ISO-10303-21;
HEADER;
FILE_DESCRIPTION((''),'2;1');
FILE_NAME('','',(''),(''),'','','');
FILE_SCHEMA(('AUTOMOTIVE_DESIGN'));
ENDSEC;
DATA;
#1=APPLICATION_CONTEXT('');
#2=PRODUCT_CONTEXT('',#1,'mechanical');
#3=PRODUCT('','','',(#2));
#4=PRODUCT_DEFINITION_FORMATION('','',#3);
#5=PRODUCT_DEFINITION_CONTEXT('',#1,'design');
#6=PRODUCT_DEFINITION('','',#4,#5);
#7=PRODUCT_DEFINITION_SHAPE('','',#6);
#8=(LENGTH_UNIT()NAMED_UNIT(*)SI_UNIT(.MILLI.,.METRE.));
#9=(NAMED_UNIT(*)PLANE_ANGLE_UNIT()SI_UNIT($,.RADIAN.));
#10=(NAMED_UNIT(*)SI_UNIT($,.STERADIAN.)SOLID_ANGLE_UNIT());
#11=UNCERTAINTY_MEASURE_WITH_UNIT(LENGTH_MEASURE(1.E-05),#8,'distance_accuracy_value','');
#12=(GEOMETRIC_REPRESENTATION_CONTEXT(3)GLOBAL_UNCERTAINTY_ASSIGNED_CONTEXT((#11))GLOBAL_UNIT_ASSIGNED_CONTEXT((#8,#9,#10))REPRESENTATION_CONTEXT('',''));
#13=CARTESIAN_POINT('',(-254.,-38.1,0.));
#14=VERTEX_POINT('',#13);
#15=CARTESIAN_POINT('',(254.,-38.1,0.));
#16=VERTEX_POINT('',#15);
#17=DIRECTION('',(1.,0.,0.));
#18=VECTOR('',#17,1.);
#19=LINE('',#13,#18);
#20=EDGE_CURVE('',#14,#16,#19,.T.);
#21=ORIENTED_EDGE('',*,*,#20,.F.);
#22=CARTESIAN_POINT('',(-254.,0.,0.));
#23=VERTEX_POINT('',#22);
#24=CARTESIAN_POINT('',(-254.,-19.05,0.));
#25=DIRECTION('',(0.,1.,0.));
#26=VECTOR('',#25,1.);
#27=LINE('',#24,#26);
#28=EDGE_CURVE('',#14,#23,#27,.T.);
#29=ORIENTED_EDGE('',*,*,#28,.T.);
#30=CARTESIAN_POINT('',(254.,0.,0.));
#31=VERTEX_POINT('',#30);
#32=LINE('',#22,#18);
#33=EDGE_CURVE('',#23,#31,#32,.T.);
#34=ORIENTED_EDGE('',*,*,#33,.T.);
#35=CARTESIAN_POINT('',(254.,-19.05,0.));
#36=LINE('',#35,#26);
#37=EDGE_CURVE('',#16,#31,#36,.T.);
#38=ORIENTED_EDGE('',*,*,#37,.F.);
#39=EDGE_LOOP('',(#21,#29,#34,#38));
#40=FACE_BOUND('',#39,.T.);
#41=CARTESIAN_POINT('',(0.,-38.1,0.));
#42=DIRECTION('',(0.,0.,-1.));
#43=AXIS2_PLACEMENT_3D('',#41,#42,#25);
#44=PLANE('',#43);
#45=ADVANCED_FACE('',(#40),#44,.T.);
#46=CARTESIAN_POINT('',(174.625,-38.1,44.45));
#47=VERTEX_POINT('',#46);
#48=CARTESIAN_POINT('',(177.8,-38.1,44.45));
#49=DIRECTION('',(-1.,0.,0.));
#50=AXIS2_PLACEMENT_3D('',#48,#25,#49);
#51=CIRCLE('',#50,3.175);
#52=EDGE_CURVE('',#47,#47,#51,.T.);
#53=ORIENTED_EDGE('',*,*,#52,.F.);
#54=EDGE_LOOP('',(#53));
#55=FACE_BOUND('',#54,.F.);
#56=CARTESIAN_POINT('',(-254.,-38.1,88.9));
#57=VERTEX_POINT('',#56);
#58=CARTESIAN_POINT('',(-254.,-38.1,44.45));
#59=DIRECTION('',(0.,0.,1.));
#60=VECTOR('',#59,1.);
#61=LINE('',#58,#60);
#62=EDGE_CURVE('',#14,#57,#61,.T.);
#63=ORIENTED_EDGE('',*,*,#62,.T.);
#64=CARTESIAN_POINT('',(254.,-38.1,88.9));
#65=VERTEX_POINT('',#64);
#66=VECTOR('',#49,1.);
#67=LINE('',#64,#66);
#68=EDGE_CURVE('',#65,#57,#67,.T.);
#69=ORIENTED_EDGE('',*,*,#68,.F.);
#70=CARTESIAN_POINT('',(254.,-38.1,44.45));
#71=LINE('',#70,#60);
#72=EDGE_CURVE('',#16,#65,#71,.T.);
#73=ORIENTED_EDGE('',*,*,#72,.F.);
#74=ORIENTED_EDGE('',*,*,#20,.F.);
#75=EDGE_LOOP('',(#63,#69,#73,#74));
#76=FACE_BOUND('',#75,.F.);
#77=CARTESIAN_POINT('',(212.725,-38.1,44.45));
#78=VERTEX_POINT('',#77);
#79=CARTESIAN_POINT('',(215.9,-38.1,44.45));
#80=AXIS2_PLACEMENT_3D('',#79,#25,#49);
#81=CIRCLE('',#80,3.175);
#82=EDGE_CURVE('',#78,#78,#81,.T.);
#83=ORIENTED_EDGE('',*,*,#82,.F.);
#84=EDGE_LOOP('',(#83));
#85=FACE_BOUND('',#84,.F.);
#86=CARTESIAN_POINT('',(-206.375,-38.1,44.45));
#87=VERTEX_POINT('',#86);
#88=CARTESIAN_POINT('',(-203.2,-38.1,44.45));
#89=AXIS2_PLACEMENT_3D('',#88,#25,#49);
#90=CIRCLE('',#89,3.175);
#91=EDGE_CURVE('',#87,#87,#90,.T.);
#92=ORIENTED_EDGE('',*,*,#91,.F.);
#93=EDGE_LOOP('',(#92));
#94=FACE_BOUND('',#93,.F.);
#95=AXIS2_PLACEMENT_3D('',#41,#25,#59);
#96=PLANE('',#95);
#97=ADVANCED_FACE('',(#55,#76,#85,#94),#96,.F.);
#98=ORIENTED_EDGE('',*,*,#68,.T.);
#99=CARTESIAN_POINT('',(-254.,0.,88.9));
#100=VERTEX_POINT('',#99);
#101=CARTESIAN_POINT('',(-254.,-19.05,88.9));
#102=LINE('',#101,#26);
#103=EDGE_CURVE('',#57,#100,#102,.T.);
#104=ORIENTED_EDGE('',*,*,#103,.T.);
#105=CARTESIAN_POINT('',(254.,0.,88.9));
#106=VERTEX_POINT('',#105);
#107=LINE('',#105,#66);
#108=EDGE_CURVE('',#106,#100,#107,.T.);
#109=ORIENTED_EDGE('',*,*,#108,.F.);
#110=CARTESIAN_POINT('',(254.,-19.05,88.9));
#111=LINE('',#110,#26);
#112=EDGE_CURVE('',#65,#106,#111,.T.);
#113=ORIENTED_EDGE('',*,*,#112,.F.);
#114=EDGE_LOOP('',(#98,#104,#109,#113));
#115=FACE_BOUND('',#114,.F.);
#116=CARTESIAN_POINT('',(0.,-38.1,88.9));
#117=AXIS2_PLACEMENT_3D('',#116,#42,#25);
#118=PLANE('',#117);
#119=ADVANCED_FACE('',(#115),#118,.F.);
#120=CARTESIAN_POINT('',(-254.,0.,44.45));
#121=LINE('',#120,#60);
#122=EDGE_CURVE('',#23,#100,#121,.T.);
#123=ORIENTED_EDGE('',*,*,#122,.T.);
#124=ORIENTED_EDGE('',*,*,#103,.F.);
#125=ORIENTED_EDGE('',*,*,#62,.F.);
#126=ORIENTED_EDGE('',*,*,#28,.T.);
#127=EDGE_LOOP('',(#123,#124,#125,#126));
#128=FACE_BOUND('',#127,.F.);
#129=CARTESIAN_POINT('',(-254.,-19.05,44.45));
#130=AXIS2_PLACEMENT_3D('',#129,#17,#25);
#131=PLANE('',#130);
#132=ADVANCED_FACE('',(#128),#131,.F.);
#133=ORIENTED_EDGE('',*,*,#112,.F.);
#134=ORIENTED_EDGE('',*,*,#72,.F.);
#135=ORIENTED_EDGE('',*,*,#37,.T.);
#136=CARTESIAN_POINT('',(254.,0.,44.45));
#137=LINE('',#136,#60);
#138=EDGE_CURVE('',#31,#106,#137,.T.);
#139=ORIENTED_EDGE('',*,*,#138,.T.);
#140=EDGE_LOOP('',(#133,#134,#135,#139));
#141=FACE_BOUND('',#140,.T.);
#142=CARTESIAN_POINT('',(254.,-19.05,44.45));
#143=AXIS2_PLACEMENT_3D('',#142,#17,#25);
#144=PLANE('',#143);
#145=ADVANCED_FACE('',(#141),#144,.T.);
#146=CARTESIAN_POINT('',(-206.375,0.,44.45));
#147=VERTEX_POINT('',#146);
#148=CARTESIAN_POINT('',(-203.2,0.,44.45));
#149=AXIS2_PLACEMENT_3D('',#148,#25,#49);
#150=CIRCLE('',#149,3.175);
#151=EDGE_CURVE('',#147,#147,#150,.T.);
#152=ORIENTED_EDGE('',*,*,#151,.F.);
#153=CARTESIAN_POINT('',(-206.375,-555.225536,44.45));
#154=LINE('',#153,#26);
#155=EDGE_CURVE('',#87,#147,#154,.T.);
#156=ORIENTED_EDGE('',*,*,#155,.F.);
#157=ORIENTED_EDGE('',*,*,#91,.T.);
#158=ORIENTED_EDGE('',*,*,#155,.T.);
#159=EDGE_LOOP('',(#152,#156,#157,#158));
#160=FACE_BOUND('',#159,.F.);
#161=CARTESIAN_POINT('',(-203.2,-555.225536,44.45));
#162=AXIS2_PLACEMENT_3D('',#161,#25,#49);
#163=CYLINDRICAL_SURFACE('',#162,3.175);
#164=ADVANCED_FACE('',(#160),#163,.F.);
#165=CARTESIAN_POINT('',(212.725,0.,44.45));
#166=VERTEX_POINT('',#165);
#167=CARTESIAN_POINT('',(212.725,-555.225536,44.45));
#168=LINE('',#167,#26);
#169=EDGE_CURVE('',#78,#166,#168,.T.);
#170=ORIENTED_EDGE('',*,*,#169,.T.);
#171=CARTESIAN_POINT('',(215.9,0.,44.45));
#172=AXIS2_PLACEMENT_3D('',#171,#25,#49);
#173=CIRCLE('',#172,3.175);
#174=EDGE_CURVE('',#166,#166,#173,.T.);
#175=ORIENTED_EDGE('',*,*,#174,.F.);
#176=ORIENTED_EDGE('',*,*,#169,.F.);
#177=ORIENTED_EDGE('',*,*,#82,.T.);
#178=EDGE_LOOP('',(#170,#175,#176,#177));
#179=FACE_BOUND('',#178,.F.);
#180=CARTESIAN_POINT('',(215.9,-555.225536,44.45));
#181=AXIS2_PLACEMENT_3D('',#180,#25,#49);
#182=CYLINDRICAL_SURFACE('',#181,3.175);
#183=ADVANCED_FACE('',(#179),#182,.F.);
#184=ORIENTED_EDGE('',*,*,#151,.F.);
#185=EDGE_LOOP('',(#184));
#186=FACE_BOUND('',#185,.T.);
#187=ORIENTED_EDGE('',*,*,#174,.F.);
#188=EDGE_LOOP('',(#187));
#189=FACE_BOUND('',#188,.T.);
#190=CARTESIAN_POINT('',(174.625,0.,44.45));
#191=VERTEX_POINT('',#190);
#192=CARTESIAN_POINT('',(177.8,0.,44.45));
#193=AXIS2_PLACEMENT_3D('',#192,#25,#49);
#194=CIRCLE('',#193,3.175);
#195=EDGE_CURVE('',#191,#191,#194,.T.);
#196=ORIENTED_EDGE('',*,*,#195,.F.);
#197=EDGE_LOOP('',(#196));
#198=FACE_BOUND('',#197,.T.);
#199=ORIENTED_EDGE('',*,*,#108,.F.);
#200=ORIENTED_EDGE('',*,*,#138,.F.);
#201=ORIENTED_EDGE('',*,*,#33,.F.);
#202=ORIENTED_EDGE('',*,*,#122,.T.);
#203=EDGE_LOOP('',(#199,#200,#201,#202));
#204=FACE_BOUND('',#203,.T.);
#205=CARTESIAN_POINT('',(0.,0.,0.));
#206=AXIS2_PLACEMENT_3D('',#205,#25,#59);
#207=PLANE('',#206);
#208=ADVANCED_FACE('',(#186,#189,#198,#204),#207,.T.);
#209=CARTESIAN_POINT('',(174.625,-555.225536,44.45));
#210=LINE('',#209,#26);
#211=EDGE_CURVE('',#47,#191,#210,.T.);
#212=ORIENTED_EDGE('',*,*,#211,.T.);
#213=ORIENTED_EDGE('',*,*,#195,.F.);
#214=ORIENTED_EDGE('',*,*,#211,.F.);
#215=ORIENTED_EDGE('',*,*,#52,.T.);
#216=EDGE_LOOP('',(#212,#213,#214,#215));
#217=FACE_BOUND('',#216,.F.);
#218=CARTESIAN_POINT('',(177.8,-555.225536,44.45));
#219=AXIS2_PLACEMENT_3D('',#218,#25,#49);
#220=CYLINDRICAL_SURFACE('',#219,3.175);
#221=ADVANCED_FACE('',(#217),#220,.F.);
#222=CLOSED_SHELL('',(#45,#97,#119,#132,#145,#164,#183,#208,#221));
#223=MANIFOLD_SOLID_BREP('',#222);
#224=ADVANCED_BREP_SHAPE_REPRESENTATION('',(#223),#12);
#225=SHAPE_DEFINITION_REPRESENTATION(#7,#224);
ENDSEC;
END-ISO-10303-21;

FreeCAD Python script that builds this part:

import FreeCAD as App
import Part
import Sketcher
Q = App.Units.Quantity


def add_polygon(sketch, points):
    """Adds a closed chain of lines whose ends are joined by coincident constraints."""
    first, n = sketch.GeometryCount, len(points)
    for a, b in zip(points, points[1:] + points[:1]):
        sketch.addGeometry(Part.LineSegment(App.Vector(*a, 0), App.Vector(*b, 0)), False)
    for i in range(n):
        sketch.addConstraint(Sketcher.Constraint("Coincident", first + i, 2, first + (i + 1) % n, 1))

doc = App.newDocument("Part")
body = doc.addObject("PartDesign::Body", "Body")

sketch1 = body.newObject("Sketcher::SketchObject", "Sketch")
sketch1.AttachmentSupport = (doc.getObject("YZ_Plane"), [""])
sketch1.MapMode = "FlatFace"
add_polygon(sketch1, [(-38, 89), (-38, 0), (0, 0), (0, 89)])
sketch1.addConstraint(Sketcher.Constraint("Vertical", 0))
sketch1.addConstraint(Sketcher.Constraint("Horizontal", 1))
sketch1.addConstraint(Sketcher.Constraint("Vertical", 2))
sketch1.addConstraint(Sketcher.Constraint("Horizontal", 3))
sketch1.addConstraint(Sketcher.Constraint("Coincident", 1, 2, -1, 1))
sketch1.addConstraint(Sketcher.Constraint("DistanceX", 1, 1, 1, 2, Q("1.5 in")))
sketch1.addConstraint(Sketcher.Constraint("DistanceY", 0, 2, 0, 1, Q("3.5 in")))
pad1 = body.newObject("PartDesign::Pad", "Pad")
pad1.Profile = sketch1
pad1.Length = Q("20 in")
pad1.Midplane = True

sketch2 = body.newObject("Sketcher::SketchObject", "Sketch001")
sketch2.AttachmentSupport = (doc.getObject("XZ_Plane"), [""])
sketch2.MapMode = "FlatFace"
sketch2.AttachmentOffset = App.Placement(App.Vector(0, 0, 1.5 * 25.4), App.Rotation())
sketch2.addGeometry(Part.Circle(App.Vector(215.9, 44.5, 0), App.Vector(0, 0, 1), 3.2), False)
sketch2.addGeometry(Part.Circle(App.Vector(177.8, 44.5, 0), App.Vector(0, 0, 1), 3.2), False)
sketch2.addGeometry(Part.Circle(App.Vector(-203.2, 44.5, 0), App.Vector(0, 0, 1), 3.2), False)
sketch2.addConstraint(Sketcher.Constraint("Equal", 0, 1))
sketch2.addConstraint(Sketcher.Constraint("Equal", 1, 2))
sketch2.addConstraint(Sketcher.Constraint("Horizontal", 0, 3, 1, 3))
sketch2.addConstraint(Sketcher.Constraint("Horizontal", 1, 3, 2, 3))
sketch2.addConstraint(Sketcher.Constraint("Diameter", 0, Q("0.25 in")))
sketch2.addConstraint(Sketcher.Constraint("DistanceX", -1, 1, 1, 3, Q("7 in")))
sketch2.addConstraint(Sketcher.Constraint("DistanceX", 2, 3, -1, 1, Q("8 in")))
sketch2.addConstraint(Sketcher.Constraint("DistanceX", -1, 1, 0, 3, Q("8.5 in")))
sketch2.addConstraint(Sketcher.Constraint("DistanceY", -1, 1, 0, 3, Q("1.75 in")))
doc.recompute()
hole = body.newObject("PartDesign::Hole", "Hole")
hole.Profile = sketch2
hole.ThreadType = "None"
hole.Diameter = Q("0.25 in")
hole.DepthType = "ThroughAll"

doc.recompute()
